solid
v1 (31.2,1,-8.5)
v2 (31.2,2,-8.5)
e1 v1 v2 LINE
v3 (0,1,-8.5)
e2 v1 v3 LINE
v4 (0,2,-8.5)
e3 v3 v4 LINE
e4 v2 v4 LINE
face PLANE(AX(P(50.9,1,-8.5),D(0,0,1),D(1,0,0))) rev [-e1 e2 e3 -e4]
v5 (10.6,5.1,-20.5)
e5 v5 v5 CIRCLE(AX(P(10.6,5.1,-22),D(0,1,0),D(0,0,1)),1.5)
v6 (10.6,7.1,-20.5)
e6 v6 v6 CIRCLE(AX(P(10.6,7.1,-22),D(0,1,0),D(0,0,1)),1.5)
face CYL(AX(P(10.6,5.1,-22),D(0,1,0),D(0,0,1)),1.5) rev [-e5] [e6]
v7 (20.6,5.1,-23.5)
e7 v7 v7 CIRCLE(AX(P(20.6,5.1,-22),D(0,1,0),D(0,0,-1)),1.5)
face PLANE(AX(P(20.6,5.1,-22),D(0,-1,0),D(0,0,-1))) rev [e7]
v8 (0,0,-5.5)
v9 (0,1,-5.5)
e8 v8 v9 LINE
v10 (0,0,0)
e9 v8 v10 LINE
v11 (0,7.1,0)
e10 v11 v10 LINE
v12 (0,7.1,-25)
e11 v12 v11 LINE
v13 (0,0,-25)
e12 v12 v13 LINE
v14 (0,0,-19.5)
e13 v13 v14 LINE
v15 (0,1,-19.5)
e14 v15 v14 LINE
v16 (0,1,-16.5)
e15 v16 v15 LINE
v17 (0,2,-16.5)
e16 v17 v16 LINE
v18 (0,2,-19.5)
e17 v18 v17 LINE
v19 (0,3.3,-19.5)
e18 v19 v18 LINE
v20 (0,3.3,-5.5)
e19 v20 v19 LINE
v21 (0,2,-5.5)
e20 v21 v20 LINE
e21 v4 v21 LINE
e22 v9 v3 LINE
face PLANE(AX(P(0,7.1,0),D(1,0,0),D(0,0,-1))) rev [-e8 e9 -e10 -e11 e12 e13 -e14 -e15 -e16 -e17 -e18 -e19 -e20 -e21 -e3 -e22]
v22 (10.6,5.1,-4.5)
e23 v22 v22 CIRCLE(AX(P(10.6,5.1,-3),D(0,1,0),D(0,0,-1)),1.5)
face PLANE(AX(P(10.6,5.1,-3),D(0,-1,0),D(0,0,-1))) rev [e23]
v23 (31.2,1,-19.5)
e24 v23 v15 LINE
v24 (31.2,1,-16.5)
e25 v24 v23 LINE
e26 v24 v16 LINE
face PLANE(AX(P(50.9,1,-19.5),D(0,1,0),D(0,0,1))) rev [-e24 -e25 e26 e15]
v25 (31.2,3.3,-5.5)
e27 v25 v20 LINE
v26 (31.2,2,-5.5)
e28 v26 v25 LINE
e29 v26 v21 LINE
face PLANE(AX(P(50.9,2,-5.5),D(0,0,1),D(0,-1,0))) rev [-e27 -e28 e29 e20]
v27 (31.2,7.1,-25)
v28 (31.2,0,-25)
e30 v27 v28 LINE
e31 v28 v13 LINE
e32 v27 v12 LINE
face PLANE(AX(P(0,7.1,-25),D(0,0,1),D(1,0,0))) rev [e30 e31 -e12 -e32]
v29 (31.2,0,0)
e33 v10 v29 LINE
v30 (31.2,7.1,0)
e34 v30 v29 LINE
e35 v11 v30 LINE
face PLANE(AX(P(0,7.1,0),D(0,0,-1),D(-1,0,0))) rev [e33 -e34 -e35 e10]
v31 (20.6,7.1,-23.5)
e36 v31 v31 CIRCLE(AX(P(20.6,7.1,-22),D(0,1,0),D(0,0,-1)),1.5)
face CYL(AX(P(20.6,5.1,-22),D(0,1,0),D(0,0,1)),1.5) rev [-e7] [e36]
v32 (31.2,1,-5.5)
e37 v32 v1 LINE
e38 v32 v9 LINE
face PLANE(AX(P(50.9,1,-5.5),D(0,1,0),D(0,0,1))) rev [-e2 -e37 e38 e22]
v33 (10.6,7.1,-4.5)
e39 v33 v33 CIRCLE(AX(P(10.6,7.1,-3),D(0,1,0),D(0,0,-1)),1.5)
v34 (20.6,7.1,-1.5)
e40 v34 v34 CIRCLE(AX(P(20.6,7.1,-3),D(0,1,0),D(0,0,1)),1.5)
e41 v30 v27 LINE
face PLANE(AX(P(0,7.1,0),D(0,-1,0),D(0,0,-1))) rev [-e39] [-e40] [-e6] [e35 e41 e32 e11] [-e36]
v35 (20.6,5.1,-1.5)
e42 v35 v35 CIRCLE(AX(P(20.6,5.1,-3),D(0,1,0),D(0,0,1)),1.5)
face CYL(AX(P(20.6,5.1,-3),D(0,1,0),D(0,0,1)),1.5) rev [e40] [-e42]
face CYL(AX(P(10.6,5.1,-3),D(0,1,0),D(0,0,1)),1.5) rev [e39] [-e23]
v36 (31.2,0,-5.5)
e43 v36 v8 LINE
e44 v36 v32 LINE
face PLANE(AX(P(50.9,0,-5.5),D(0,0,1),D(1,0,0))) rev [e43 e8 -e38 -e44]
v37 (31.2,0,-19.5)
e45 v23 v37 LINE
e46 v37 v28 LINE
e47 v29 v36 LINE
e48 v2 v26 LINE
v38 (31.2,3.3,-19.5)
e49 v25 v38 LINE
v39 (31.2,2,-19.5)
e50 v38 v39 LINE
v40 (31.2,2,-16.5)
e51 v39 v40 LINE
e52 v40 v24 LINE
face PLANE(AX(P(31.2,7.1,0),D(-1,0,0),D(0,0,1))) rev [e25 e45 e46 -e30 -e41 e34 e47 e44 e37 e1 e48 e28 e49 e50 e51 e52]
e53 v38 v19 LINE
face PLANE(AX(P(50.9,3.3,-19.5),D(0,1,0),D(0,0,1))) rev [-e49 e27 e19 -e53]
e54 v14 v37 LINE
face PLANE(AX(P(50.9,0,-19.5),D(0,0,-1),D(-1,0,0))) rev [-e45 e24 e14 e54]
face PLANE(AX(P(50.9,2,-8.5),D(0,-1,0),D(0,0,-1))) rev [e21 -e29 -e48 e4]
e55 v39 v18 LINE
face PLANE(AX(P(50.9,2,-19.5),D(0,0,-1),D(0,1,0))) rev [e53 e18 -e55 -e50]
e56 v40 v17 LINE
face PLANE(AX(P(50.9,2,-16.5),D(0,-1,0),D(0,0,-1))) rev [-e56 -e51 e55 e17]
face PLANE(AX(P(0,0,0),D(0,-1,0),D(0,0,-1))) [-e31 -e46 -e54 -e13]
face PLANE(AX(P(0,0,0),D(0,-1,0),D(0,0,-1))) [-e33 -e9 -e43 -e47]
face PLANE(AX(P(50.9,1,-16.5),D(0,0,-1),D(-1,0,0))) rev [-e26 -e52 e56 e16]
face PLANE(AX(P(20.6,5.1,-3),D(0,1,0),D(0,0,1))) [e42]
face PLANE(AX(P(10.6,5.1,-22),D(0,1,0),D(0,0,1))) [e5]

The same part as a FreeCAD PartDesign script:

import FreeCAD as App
import Part
import Sketcher

V = App.Vector

doc = App.newDocument("Part")
body = doc.addObject("PartDesign::Body", "Body")

sketch1 = doc.addObject("Sketcher::SketchObject", "Sketch")
body.addObject(sketch1)
sketch1.AttachmentSupport = (doc.XZ_Plane, [""])
sketch1.MapMode = "FlatFace"
sketch1.addGeometry(Part.LineSegment(V(0, -25, 0), V(0, 0, 0)), False)
sketch1.addGeometry(Part.LineSegment(V(0, 0, 0), V(31, 0, 0)), False)
sketch1.addGeometry(Part.LineSegment(V(31, 0, 0), V(31, -25, 0)), False)
sketch1.addGeometry(Part.LineSegment(V(31, -25, 0), V(0, -25, 0)), False)
sketch1.addConstraint(Sketcher.Constraint("Coincident", 0, 2, 1, 1))
sketch1.addConstraint(Sketcher.Constraint("Coincident", 1, 2, 2, 1))
sketch1.addConstraint(Sketcher.Constraint("Coincident", 2, 2, 3, 1))
sketch1.addConstraint(Sketcher.Constraint("Coincident", 3, 2, 0, 1))
sketch1.addConstraint(Sketcher.Constraint("Vertical", 0))
sketch1.addConstraint(Sketcher.Constraint("Horizontal", 1))
sketch1.addConstraint(Sketcher.Constraint("Vertical", 2))
sketch1.addConstraint(Sketcher.Constraint("Horizontal", 3))
sketch1.addConstraint(Sketcher.Constraint("Coincident", 0, 2, -1, 1))
sketch1.addConstraint(Sketcher.Constraint("DistanceY", 0, 1, 0, 2, 25.0))
sketch1.addConstraint(Sketcher.Constraint("DistanceX", 1, 1, 1, 2, 31.2))
pad1 = doc.addObject("PartDesign::Pad", "Pad")
body.addObject(pad1)
pad1.Profile = sketch1
pad1.Length = 7.1
pad1.Reversed = True

sketch2 = doc.addObject("Sketcher::SketchObject", "Sketch001")
body.addObject(sketch2)
sketch2.AttachmentSupport = (doc.YZ_Plane, [""])
sketch2.MapMode = "FlatFace"
sketch2.addGeometry(Part.LineSegment(V(1, -19.5, 0), V(0, -19.5, 0)), False)
sketch2.addGeometry(Part.LineSegment(V(0, -19.5, 0), V(0, -5.5, 0)), False)
sketch2.addGeometry(Part.LineSegment(V(0, -5.5, 0), V(1, -5.5, 0)), False)
sketch2.addGeometry(Part.LineSegment(V(1, -5.5, 0), V(1, -8.5, 0)), False)
sketch2.addGeometry(Part.LineSegment(V(1, -8.5, 0), V(2, -8.5, 0)), False)
sketch2.addGeometry(Part.LineSegment(V(2, -8.5, 0), V(2, -5.5, 0)), False)
sketch2.addGeometry(Part.LineSegment(V(2, -5.5, 0), V(3.3, -5.5, 0)), False)
sketch2.addGeometry(Part.LineSegment(V(3.3, -5.5, 0), V(3.3, -19.5, 0)), False)
sketch2.addGeometry(Part.LineSegment(V(3.3, -19.5, 0), V(2, -19.5, 0)), False)
sketch2.addGeometry(Part.LineSegment(V(2, -19.5, 0), V(2, -16.5, 0)), False)
sketch2.addGeometry(Part.LineSegment(V(2, -16.5, 0), V(1, -16.5, 0)), False)
sketch2.addGeometry(Part.LineSegment(V(1, -16.5, 0), V(1, -19.5, 0)), False)
sketch2.addConstraint(Sketcher.Constraint("Coincident", 0, 2, 1, 1))
sketch2.addConstraint(Sketcher.Constraint("Coincident", 1, 2, 2, 1))
sketch2.addConstraint(Sketcher.Constraint("Coincident", 2, 2, 3, 1))
sketch2.addConstraint(Sketcher.Constraint("Coincident", 3, 2, 4, 1))
sketch2.addConstraint(Sketcher.Constraint("Coincident", 4, 2, 5, 1))
sketch2.addConstraint(Sketcher.Constraint("Coincident", 5, 2, 6, 1))
sketch2.addConstraint(Sketcher.Constraint("Coincident", 6, 2, 7, 1))
sketch2.addConstraint(Sketcher.Constraint("Coincident", 7, 2, 8, 1))
sketch2.addConstraint(Sketcher.Constraint("Coincident", 8, 2, 9, 1))
sketch2.addConstraint(Sketcher.Constraint("Coincident", 9, 2, 10, 1))
sketch2.addConstraint(Sketcher.Constraint("Coincident", 10, 2, 11, 1))
sketch2.addConstraint(Sketcher.Constraint("Coincident", 11, 2, 0, 1))
sketch2.addConstraint(Sketcher.Constraint("Horizontal", 0))
sketch2.addConstraint(Sketcher.Constraint("Vertical", 1))
sketch2.addConstraint(Sketcher.Constraint("Horizontal", 2))
sketch2.addConstraint(Sketcher.Constraint("Vertical", 3))
sketch2.addConstraint(Sketcher.Constraint("Horizontal", 4))
sketch2.addConstraint(Sketcher.Constraint("Vertical", 5))
sketch2.addConstraint(Sketcher.Constraint("Horizontal", 6))
sketch2.addConstraint(Sketcher.Constraint("Vertical", 7))
sketch2.addConstraint(Sketcher.Constraint("Horizontal", 8))
sketch2.addConstraint(Sketcher.Constraint("Vertical", 9))
sketch2.addConstraint(Sketcher.Constraint("Horizontal", 10))
sketch2.addConstraint(Sketcher.Constraint("Vertical", 11))
sketch2.addConstraint(Sketcher.Constraint("PointOnObject", 0, 2, -2))
sketch2.addConstraint(Sketcher.Constraint("Horizontal", 2, 2, 5, 2))
sketch2.addConstraint(Sketcher.Constraint("Horizontal", 0, 2, 7, 2))
sketch2.addConstraint(Sketcher.Constraint("Vertical", 5, 2, 8, 2))
sketch2.addConstraint(Sketcher.Constraint("Vertical", 3, 2, 10, 2))
sketch2.addConstraint(Sketcher.Constraint("Equal", 2, 4))
sketch2.addConstraint(Sketcher.Constraint("Equal", 5, 9))
sketch2.addConstraint(Sketcher.Constraint("DistanceX", 0, 2, 0, 1, 1.0))
sketch2.addConstraint(Sketcher.Constraint("DistanceY", 1, 1, 1, 2, 14.0))
sketch2.addConstraint(Sketcher.Constraint("DistanceY", 3, 2, 3, 1, 3.0))
sketch2.addConstraint(Sketcher.Constraint("DistanceX", 6, 1, 6, 2, 1.3))
sketch2.addConstraint(Sketcher.Constraint("DistanceY", 0, 2, -1, 1, 19.5))
pocket1 = doc.addObject("PartDesign::Pocket", "Pocket")
body.addObject(pocket1)
pocket1.Profile = sketch2
pocket1.Length = 50.9
pocket1.Reversed = True

sketch3 = doc.addObject("Sketcher::SketchObject", "Sketch002")
body.addObject(sketch3)
sketch3.AttachmentSupport = (doc.XZ_Plane, [""])
sketch3.MapMode = "FlatFace"
sketch3.AttachmentOffset = App.Placement(V(0, 0, -7.1), App.Rotation())
sketch3.addGeometry(Part.Circle(V(10.6, -22, 0), V(0, 0, 1), 1.5), False)
sketch3.addGeometry(Part.Circle(V(20.6, -22, 0), V(0, 0, 1), 1.5), False)
sketch3.addGeometry(Part.Circle(V(20.6, -3, 0), V(0, 0, 1), 1.5), False)
sketch3.addGeometry(Part.Circle(V(10.6, -3, 0), V(0, 0, 1), 1.5), False)
sketch3.addConstraint(Sketcher.Constraint("Equal", 0, 1))
sketch3.addConstraint(Sketcher.Constraint("Equal", 1, 2))
sketch3.addConstraint(Sketcher.Constraint("Equal", 2, 3))
sketch3.addConstraint(Sketcher.Constraint("Horizontal", 0, 3, 1, 3))
sketch3.addConstraint(Sketcher.Constraint("Horizontal", 2, 3, 3, 3))
sketch3.addConstraint(Sketcher.Constraint("Vertical", 1, 3, 2, 3))
sketch3.addConstraint(Sketcher.Constraint("Vertical", 0, 3, 3, 3))
sketch3.addConstraint(Sketcher.Constraint("Diameter", 0, 3.0))
sketch3.addConstraint(Sketcher.Constraint("DistanceY", 0, 3, -1, 1, 22.0))
sketch3.addConstraint(Sketcher.Constraint("DistanceY", 2, 3, -1, 1, 3.0))
sketch3.addConstraint(Sketcher.Constraint("DistanceX", 0, 3, 1, 3, 10.0))
sketch3.addConstraint(Sketcher.Constraint("DistanceX", -1, 1, 0, 3, 10.6))
pocket2 = doc.addObject("PartDesign::Pocket", "Pocket001")
body.addObject(pocket2)
pocket2.Profile = sketch3
pocket2.Length = 2
pocket2.Reversed = True

doc.recompute()
